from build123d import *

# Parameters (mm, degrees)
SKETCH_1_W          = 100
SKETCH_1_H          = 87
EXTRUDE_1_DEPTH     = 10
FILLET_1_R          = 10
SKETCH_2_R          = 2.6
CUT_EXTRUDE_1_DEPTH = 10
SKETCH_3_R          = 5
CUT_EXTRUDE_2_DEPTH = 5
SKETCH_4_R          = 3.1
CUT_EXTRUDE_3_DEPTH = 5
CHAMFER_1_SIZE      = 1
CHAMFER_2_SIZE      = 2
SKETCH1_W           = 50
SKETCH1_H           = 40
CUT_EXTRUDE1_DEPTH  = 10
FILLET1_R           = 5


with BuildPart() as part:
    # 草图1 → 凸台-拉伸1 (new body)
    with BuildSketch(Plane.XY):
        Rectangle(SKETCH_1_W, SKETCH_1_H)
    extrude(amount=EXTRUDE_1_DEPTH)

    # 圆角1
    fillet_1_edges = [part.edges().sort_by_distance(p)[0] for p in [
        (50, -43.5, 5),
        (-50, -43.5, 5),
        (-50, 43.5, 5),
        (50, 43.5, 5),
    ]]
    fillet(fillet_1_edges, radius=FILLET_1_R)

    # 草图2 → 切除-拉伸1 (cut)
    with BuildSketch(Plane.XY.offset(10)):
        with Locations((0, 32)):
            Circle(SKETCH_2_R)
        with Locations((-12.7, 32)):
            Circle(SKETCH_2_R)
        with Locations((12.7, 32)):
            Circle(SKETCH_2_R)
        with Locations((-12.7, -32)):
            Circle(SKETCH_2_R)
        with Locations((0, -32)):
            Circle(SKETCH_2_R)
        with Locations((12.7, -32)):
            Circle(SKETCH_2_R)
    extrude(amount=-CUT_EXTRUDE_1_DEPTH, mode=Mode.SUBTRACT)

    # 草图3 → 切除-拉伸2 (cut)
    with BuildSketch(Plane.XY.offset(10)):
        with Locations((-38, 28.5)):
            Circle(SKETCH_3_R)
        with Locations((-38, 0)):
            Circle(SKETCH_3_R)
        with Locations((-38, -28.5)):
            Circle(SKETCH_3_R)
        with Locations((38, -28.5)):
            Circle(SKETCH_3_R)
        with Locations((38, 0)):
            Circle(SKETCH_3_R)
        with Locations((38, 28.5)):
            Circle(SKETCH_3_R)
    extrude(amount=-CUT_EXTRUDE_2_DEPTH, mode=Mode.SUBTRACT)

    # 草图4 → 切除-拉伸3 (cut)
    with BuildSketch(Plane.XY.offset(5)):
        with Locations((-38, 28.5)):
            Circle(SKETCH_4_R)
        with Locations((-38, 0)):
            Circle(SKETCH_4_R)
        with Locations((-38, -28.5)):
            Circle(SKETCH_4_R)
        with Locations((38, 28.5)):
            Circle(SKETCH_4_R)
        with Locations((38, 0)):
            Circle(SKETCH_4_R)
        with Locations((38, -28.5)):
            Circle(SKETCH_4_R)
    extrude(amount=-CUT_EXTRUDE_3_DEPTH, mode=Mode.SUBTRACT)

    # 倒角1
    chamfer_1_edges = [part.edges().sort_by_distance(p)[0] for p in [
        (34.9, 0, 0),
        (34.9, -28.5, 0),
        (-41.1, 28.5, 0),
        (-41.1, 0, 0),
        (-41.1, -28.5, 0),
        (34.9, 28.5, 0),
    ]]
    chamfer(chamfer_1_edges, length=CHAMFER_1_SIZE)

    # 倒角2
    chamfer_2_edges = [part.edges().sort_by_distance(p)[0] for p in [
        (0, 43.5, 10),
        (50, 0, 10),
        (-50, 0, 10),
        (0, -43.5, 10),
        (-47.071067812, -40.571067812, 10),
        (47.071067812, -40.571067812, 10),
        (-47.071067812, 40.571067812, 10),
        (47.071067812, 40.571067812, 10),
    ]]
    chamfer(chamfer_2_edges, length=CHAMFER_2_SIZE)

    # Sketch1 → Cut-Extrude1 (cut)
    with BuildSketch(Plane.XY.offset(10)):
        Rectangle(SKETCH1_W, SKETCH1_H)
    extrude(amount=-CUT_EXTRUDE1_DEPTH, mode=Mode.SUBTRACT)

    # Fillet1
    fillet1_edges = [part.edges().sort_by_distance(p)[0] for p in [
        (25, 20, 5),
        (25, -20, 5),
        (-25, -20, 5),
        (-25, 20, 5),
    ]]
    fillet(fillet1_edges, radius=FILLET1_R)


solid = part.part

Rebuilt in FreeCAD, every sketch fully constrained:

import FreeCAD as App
import Part
import Sketcher
from FreeCAD import Vector


def edges_at(feature, points):
    """Names of the edges that pass closest to the given points."""
    edges = feature.Shape.Edges
    near = lambda p: min(range(len(edges)), key=lambda i: edges[i].distToShape(Part.Vertex(*p))[0])
    return sorted({f"Edge{near(p) + 1}" for p in points})


def add_polygon(sketch, points):
    """Adds a closed chain of lines whose ends are joined by coincident constraints."""
    first, n = sketch.GeometryCount, len(points)
    for a, b in zip(points, points[1:] + points[:1]):
        sketch.addGeometry(Part.LineSegment(App.Vector(*a, 0), App.Vector(*b, 0)), False)
    for i in range(n):
        sketch.addConstraint(Sketcher.Constraint("Coincident", first + i, 2, first + (i + 1) % n, 1))

doc = App.newDocument("Part")
body = doc.addObject("PartDesign::Body", "Body")

sketch1 = doc.addObject("Sketcher::SketchObject", "Sketch")
body.addObject(sketch1)
sketch1.AttachmentSupport = (doc.XY_Plane, [""])
sketch1.MapMode = "FlatFace"
add_polygon(sketch1, [(-50, 44), (-50, -44), (50, -44), (50, 44)])
sketch1.addConstraint([
    Sketcher.Constraint("Vertical", 0),
    Sketcher.Constraint("Horizontal", 1),
    Sketcher.Constraint("Vertical", 2),
    Sketcher.Constraint("Horizontal", 3),
    Sketcher.Constraint("Symmetric", 0, 2, 2, 2, -1, 1),
    Sketcher.Constraint("DistanceX", 1, 1, 1, 2, 100.0),
    Sketcher.Constraint("DistanceY", 0, 2, 0, 1, 87.0),
])
pad1 = doc.addObject("PartDesign::Pad", "Pad")
body.addObject(pad1)
pad1.Profile = sketch1
pad1.Length = 10
doc.recompute()

fillet = doc.addObject("PartDesign::Fillet", "Fillet")
body.addObject(fillet)
fillet.Base = (pad1, edges_at(pad1, [
    (50, -43.5, 5),
    (-50, -43.5, 5),
    (-50, 43.5, 5),
    (50, 43.5, 5),
]))
fillet.Radius = 10

sketch2 = doc.addObject("Sketcher::SketchObject", "Sketch001")
body.addObject(sketch2)
sketch2.AttachmentSupport = (doc.XY_Plane, [""])
sketch2.MapMode = "FlatFace"
sketch2.AttachmentOffset = App.Placement(Vector(0, 0, 10), App.Rotation())
sketch2.addGeometry([
    Part.Circle(Vector(0, 32, 0), Vector(0, 0, 1), 2.6),
    Part.Circle(Vector(-12.7, 32, 0), Vector(0, 0, 1), 2.6),
    Part.Circle(Vector(12.7, 32, 0), Vector(0, 0, 1), 2.6),
    Part.Circle(Vector(-12.7, -32, 0), Vector(0, 0, 1), 2.6),
    Part.Circle(Vector(0, -32, 0), Vector(0, 0, 1), 2.6),
    Part.Circle(Vector(12.7, -32, 0), Vector(0, 0, 1), 2.6),
], False)
sketch2.addConstraint([
    Sketcher.Constraint("Equal", 0, 1),
    Sketcher.Constraint("Equal", 1, 2),
    Sketcher.Constraint("Equal", 2, 3),
    Sketcher.Constraint("Equal", 3, 4),
    Sketcher.Constraint("Equal", 4, 5),
    Sketcher.Constraint("Symmetric", 2, 3, 3, 3, -1, 1),
    Sketcher.Constraint("Symmetric", 0, 3, 4, 3, -1, 1),
    Sketcher.Constraint("Symmetric", 1, 3, 5, 3, -1, 1),
    Sketcher.Constraint("Symmetric", 1, 3, 2, 3, -2),
    Sketcher.Constraint("PointOnObject", 0, 3, -2),
    Sketcher.Constraint("Horizontal", 0, 3, 1, 3),
    Sketcher.Constraint("Diameter", 0, 5.2),
    Sketcher.Constraint("DistanceY", -1, 1, 0, 3, 32.0),
    Sketcher.Constraint("DistanceX", 1, 3, -1, 1, 12.7),
])
pocket1 = doc.addObject("PartDesign::Pocket", "Pocket")
body.addObject(pocket1)
pocket1.Profile = sketch2
pocket1.Length = 10

sketch3 = doc.addObject("Sketcher::SketchObject", "Sketch002")
body.addObject(sketch3)
sketch3.AttachmentSupport = (doc.XY_Plane, [""])
sketch3.MapMode = "FlatFace"
sketch3.AttachmentOffset = App.Placement(Vector(0, 0, 10), App.Rotation())
sketch3.addGeometry([
    Part.Circle(Vector(-38, 28, 0), Vector(0, 0, 1), 5),
    Part.Circle(Vector(-38, 0, 0), Vector(0, 0, 1), 5),
    Part.Circle(Vector(-38, -28, 0), Vector(0, 0, 1), 5),
    Part.Circle(Vector(38, -28, 0), Vector(0, 0, 1), 5),
    Part.Circle(Vector(38, 0, 0), Vector(0, 0, 1), 5),
    Part.Circle(Vector(38, 28, 0), Vector(0, 0, 1), 5),
], False)
sketch3.addConstraint([
    Sketcher.Constraint("Equal", 0, 1),
    Sketcher.Constraint("Equal", 1, 2),
    Sketcher.Constraint("Equal", 2, 3),
    Sketcher.Constraint("Equal", 3, 4),
    Sketcher.Constraint("Equal", 4, 5),
    Sketcher.Constraint("Symmetric", 0, 3, 3, 3, -1, 1),
    Sketcher.Constraint("Symmetric", 1, 3, 4, 3, -1, 1),
    Sketcher.Constraint("Symmetric", 2, 3, 5, 3, -1, 1),
    Sketcher.Constraint("Symmetric", 2, 3, 3, 3, -2),
    Sketcher.Constraint("PointOnObject", 1, 3, -1),
    Sketcher.Constraint("Vertical", 0, 3, 1, 3),
    Sketcher.Constraint("Diameter", 0, 10.0),
    Sketcher.Constraint("DistanceX", 0, 3, -1, 1, 38.0),
    Sketcher.Constraint("DistanceY", 2, 3, 0, 3, 57.0),
])
pocket2 = doc.addObject("PartDesign::Pocket", "Pocket001")
body.addObject(pocket2)
pocket2.Profile = sketch3
pocket2.Length = 5

sketch4 = doc.addObject("Sketcher::SketchObject", "Sketch003")
body.addObject(sketch4)
sketch4.AttachmentSupport = (doc.XY_Plane, [""])
sketch4.MapMode = "FlatFace"
sketch4.AttachmentOffset = App.Placement(Vector(0, 0, 5), App.Rotation())
sketch4.addGeometry([
    Part.Circle(Vector(-38, 28.5, 0), Vector(0, 0, 1), 3.1),
    Part.Circle(Vector(-38, 0, 0), Vector(0, 0, 1), 3.1),
    Part.Circle(Vector(-38, -28.5, 0), Vector(0, 0, 1), 3.1),
    Part.Circle(Vector(38, 28.5, 0), Vector(0, 0, 1), 3.1),
    Part.Circle(Vector(38, 0, 0), Vector(0, 0, 1), 3.1),
    Part.Circle(Vector(38, -28.5, 0), Vector(0, 0, 1), 3.1),
], False)
sketch4.addConstraint([
    Sketcher.Constraint("Equal", 0, 1),
    Sketcher.Constraint("Equal", 1, 2),
    Sketcher.Constraint("Equal", 2, 3),
    Sketcher.Constraint("Equal", 3, 4),
    Sketcher.Constraint("Equal", 4, 5),
    Sketcher.Constraint("Symmetric", 2, 3, 3, 3, -1, 1),
    Sketcher.Constraint("Symmetric", 1, 3, 4, 3, -1, 1),
    Sketcher.Constraint("Symmetric", 0, 3, 5, 3, -1, 1),
    Sketcher.Constraint("Symmetric", 0, 3, 3, 3, -2),
    Sketcher.Constraint("PointOnObject", 1, 3, -1),
    Sketcher.Constraint("Vertical", 0, 3, 1, 3),
    Sketcher.Constraint("Diameter", 0, 6.2),
    Sketcher.Constraint("DistanceX", 0, 3, -1, 1, 38.0),
    Sketcher.Constraint("DistanceY", 2, 3, 0, 3, 57.0),
])
pocket3 = doc.addObject("PartDesign::Pocket", "Pocket002")
body.addObject(pocket3)
pocket3.Profile = sketch4
pocket3.Length = 5
doc.recompute()

chamfer = doc.addObject("PartDesign::Chamfer", "Chamfer")
body.addObject(chamfer)
chamfer.Base = (pocket3, edges_at(pocket3, [
    (34.9, 0, 0),
    (34.9, -28.5, 0),
    (-41.1, 28.5, 0),
    (-41.1, 0, 0),
    (-41.1, -28.5, 0),
    (34.9, 28.5, 0),
]))
chamfer.Size = 1
doc.recompute()

chamfer2 = doc.addObject("PartDesign::Chamfer", "Chamfer001")
body.addObject(chamfer2)
chamfer2.Base = (chamfer, edges_at(chamfer, [
    (0, 43.5, 10),
    (50, 0, 10),
    (-50, 0, 10),
    (0, -43.5, 10),
    (-47.071, -40.571, 10),
    (47.071, -40.571, 10),
    (-47.071, 40.571, 10),
    (47.071, 40.571, 10),
]))
chamfer2.Size = 2

sketch5 = doc.addObject("Sketcher::SketchObject", "Sketch004")
body.addObject(sketch5)
sketch5.AttachmentSupport = (doc.XY_Plane, [""])
sketch5.MapMode = "FlatFace"
sketch5.AttachmentOffset = App.Placement(Vector(0, 0, 10), App.Rotation())
add_polygon(sketch5, [(-25, 20), (-25, -20), (25, -20), (25, 20)])
sketch5.addConstraint([
    Sketcher.Constraint("Vertical", 0),
    Sketcher.Constraint("Horizontal", 1),
    Sketcher.Constraint("Vertical", 2),
    Sketcher.Constraint("Horizontal", 3),
    Sketcher.Constraint("Symmetric", 0, 2, 2, 2, -1, 1),
    Sketcher.Constraint("DistanceX", 1, 1, 1, 2, 50.0),
    Sketcher.Constraint("DistanceY", 0, 2, 0, 1, 40.0),
])
pocket4 = doc.addObject("PartDesign::Pocket", "Pocket003")
body.addObject(pocket4)
pocket4.Profile = sketch5
pocket4.Length = 10
doc.recompute()

fillet2 = doc.addObject("PartDesign::Fillet", "Fillet001")
body.addObject(fillet2)
fillet2.Base = (pocket4, edges_at(pocket4, [
    (25, 20, 5),
    (25, -20, 5),
    (-25, -20, 5),
    (-25, 20, 5),
]))
fillet2.Radius = 5

doc.recompute()
